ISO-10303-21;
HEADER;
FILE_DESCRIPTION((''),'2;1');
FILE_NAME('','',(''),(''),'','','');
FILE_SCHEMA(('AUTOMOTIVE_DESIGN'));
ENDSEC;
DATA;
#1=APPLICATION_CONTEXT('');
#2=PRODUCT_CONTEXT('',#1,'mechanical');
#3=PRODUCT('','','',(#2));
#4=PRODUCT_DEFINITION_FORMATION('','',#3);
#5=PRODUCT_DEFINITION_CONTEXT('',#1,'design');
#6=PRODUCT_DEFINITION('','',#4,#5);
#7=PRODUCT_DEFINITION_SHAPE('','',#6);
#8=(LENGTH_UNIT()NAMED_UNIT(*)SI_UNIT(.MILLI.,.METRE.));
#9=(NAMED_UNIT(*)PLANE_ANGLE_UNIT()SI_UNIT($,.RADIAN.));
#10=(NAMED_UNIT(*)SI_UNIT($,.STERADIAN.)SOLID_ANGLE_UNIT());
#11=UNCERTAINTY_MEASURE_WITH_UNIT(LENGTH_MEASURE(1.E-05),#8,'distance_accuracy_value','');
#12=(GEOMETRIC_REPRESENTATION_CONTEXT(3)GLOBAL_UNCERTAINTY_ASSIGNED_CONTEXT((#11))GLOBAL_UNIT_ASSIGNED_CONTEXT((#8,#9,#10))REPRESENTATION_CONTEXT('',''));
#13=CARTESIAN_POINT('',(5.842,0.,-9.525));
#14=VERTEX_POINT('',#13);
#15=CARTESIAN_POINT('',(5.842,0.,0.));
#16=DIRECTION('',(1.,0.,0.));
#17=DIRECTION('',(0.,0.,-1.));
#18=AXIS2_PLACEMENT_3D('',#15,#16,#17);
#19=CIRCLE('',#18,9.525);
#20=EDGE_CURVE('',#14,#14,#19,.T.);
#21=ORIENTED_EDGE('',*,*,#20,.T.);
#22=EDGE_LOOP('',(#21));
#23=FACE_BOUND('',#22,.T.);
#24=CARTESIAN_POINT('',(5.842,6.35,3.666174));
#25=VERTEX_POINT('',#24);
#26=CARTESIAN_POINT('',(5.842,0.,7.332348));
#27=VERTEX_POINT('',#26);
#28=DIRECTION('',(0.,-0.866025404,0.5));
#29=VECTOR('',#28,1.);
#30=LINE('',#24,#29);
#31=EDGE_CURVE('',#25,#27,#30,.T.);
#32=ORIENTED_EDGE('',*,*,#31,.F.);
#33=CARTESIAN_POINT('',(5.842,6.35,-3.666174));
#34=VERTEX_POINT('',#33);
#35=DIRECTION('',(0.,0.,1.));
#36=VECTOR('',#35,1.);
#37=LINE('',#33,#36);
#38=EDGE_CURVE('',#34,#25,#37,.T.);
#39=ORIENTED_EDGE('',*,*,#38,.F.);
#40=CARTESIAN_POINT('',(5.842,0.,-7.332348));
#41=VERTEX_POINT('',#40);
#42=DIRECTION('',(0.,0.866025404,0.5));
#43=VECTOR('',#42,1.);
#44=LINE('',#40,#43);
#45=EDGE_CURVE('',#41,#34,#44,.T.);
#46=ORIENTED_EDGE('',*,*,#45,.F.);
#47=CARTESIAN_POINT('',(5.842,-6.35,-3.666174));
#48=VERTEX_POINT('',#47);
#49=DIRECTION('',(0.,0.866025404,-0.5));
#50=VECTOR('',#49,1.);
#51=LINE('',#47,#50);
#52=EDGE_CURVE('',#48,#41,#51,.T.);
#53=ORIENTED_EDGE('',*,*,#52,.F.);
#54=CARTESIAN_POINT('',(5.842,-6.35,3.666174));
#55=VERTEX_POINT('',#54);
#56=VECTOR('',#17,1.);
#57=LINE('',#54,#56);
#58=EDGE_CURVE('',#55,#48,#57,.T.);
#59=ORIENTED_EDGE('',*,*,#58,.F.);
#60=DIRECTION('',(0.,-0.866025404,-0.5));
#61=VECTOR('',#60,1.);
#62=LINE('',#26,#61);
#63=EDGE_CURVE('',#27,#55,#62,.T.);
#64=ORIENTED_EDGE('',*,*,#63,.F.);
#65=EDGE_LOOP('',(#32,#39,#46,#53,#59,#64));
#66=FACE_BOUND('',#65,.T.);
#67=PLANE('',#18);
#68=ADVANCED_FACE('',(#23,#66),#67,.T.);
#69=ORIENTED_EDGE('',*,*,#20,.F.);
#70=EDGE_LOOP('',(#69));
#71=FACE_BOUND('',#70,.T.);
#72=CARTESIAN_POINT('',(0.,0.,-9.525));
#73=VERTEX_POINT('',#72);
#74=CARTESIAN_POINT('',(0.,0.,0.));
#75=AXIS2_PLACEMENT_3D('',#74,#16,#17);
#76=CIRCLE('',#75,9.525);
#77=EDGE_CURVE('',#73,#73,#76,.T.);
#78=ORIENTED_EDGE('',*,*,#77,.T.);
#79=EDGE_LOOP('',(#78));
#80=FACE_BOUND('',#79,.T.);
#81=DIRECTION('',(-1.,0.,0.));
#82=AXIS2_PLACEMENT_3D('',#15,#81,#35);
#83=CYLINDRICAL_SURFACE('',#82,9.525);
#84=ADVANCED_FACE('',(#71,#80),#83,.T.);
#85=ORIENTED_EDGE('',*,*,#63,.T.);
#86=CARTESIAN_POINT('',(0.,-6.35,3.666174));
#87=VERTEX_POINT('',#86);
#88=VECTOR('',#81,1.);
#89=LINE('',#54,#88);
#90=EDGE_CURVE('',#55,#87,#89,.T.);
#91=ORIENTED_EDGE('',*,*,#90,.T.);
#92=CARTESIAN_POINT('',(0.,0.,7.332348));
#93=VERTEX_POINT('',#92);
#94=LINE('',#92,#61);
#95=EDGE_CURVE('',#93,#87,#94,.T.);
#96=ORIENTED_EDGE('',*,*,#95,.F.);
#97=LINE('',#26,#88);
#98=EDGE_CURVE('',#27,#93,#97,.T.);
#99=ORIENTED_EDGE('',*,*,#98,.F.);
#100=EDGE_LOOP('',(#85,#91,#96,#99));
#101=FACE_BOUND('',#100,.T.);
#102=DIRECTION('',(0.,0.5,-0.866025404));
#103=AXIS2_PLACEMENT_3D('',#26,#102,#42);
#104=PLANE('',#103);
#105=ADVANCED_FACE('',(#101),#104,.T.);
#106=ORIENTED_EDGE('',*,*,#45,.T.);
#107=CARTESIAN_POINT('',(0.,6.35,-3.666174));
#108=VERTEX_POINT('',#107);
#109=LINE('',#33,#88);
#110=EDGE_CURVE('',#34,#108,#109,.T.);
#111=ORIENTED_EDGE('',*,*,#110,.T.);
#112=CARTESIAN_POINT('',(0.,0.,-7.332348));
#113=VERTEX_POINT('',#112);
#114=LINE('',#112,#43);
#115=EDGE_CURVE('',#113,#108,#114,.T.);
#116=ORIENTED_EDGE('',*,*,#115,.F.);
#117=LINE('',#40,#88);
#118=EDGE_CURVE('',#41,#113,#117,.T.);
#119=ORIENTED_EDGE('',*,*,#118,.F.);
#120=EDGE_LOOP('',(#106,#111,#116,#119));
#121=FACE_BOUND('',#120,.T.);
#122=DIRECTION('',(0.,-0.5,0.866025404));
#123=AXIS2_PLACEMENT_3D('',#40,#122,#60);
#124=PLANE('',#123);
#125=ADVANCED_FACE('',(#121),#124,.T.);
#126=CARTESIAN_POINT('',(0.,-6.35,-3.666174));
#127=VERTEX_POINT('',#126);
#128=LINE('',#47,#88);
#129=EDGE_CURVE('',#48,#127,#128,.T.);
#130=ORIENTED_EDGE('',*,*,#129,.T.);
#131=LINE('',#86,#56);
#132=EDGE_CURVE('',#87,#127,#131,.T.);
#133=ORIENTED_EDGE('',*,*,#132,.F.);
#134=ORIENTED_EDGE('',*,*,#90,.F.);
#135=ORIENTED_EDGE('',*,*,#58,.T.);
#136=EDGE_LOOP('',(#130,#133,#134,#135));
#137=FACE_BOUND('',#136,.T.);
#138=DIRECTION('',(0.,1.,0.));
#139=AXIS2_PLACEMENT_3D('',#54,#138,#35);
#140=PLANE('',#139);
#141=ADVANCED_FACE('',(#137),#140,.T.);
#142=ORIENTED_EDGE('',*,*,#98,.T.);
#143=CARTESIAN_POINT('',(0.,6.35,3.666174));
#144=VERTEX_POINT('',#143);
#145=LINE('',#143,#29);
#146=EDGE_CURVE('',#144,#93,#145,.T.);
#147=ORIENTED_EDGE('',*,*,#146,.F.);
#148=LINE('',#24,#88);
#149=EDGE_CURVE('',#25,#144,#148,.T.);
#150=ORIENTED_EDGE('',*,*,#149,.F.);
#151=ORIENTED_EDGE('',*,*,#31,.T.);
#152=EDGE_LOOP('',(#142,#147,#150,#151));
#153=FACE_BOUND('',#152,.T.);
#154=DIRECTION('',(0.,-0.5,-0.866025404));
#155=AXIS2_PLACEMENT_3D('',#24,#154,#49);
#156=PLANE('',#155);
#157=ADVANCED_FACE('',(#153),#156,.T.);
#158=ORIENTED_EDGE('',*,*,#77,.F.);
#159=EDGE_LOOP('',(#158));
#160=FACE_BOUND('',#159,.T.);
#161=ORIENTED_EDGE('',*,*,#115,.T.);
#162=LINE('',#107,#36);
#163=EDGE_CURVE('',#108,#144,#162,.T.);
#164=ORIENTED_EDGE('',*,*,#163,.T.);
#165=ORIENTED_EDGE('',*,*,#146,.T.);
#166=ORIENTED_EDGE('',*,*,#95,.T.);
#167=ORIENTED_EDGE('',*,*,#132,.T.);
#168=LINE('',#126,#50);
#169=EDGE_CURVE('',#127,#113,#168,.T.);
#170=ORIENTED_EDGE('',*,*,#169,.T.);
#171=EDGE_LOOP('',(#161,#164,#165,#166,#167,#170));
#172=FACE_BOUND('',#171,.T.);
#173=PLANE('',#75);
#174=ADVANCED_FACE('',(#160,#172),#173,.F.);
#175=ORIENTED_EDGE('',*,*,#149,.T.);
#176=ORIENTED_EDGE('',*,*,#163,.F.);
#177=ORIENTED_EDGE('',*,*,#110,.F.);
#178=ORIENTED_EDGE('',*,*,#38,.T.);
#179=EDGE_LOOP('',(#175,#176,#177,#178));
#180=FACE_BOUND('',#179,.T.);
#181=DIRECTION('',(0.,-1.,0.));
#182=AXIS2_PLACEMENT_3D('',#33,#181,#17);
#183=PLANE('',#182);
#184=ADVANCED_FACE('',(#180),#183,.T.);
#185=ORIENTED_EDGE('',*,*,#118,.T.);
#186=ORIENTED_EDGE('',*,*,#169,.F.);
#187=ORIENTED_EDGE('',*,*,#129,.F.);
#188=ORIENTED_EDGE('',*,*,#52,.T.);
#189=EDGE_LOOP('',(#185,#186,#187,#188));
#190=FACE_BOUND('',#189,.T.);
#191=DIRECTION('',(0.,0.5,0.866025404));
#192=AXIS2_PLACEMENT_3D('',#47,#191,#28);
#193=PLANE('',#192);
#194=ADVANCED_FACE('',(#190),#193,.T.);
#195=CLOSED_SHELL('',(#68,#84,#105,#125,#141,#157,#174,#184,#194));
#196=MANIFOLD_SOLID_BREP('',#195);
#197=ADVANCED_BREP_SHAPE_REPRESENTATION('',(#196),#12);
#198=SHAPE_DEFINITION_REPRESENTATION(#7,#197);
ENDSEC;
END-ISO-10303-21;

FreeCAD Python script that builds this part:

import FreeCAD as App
import Part
import Sketcher

V = App.Vector
Q = App.Units.Quantity


def add_polygon(sketch, points):
    """Adds a closed chain of lines whose ends are joined by coincident constraints."""
    first, n = sketch.GeometryCount, len(points)
    for a, b in zip(points, points[1:] + points[:1]):
        sketch.addGeometry(Part.LineSegment(App.Vector(*a, 0), App.Vector(*b, 0)), False)
    for i in range(n):
        sketch.addConstraint(Sketcher.Constraint("Coincident", first + i, 2, first + (i + 1) % n, 1))

doc = App.newDocument("Part")
body = doc.addObject("PartDesign::Body", "Body")

sketch1 = body.newObject("Sketcher::SketchObject", "Sketch")
sketch1.AttachmentSupport = (doc.getObject("YZ_Plane"), [""])
sketch1.MapMode = "FlatFace"
sketch1.addGeometry(Part.Circle(V(0, 0, 0), V(0, 0, 1), 10), False)
add_polygon(sketch1, [(6, -4), (0, -7), (-6, -4), (-6, 4), (0, 7), (6, 4)])
sketch1.addConstraint(Sketcher.Constraint("Vertical", 3))
sketch1.addConstraint(Sketcher.Constraint("Vertical", 6))
sketch1.addConstraint(Sketcher.Constraint("Coincident", 0, 3, -1, 1))
sketch1.addConstraint(Sketcher.Constraint("Symmetric", 1, 2, 4, 2, -1, 1))
sketch1.addConstraint(Sketcher.Constraint("Symmetric", 2, 2, 5, 2, -1, 1))
sketch1.addConstraint(Sketcher.Constraint("PointOnObject", 1, 2, -2))
sketch1.addConstraint(Sketcher.Constraint("Parallel", 1, 4))
sketch1.addConstraint(Sketcher.Constraint("Horizontal", 3, 2, 5, 2))
sketch1.addConstraint(Sketcher.Constraint("Diameter", 0, Q("0.75 in")))
sketch1.addConstraint(Sketcher.Constraint("Angle", 1, Q("-150 deg")))
sketch1.addConstraint(Sketcher.Constraint("DistanceX", 3, 2, 5, 2, Q("0.5 in")))
sketch1.addConstraint(Sketcher.Constraint("DistanceY", 3, 1, 3, 2, Q("7.332348 mm")))
pad1 = body.newObject("PartDesign::Pad", "Pad")
pad1.Profile = sketch1
pad1.Length = Q("0.23 in")

doc.recompute()
